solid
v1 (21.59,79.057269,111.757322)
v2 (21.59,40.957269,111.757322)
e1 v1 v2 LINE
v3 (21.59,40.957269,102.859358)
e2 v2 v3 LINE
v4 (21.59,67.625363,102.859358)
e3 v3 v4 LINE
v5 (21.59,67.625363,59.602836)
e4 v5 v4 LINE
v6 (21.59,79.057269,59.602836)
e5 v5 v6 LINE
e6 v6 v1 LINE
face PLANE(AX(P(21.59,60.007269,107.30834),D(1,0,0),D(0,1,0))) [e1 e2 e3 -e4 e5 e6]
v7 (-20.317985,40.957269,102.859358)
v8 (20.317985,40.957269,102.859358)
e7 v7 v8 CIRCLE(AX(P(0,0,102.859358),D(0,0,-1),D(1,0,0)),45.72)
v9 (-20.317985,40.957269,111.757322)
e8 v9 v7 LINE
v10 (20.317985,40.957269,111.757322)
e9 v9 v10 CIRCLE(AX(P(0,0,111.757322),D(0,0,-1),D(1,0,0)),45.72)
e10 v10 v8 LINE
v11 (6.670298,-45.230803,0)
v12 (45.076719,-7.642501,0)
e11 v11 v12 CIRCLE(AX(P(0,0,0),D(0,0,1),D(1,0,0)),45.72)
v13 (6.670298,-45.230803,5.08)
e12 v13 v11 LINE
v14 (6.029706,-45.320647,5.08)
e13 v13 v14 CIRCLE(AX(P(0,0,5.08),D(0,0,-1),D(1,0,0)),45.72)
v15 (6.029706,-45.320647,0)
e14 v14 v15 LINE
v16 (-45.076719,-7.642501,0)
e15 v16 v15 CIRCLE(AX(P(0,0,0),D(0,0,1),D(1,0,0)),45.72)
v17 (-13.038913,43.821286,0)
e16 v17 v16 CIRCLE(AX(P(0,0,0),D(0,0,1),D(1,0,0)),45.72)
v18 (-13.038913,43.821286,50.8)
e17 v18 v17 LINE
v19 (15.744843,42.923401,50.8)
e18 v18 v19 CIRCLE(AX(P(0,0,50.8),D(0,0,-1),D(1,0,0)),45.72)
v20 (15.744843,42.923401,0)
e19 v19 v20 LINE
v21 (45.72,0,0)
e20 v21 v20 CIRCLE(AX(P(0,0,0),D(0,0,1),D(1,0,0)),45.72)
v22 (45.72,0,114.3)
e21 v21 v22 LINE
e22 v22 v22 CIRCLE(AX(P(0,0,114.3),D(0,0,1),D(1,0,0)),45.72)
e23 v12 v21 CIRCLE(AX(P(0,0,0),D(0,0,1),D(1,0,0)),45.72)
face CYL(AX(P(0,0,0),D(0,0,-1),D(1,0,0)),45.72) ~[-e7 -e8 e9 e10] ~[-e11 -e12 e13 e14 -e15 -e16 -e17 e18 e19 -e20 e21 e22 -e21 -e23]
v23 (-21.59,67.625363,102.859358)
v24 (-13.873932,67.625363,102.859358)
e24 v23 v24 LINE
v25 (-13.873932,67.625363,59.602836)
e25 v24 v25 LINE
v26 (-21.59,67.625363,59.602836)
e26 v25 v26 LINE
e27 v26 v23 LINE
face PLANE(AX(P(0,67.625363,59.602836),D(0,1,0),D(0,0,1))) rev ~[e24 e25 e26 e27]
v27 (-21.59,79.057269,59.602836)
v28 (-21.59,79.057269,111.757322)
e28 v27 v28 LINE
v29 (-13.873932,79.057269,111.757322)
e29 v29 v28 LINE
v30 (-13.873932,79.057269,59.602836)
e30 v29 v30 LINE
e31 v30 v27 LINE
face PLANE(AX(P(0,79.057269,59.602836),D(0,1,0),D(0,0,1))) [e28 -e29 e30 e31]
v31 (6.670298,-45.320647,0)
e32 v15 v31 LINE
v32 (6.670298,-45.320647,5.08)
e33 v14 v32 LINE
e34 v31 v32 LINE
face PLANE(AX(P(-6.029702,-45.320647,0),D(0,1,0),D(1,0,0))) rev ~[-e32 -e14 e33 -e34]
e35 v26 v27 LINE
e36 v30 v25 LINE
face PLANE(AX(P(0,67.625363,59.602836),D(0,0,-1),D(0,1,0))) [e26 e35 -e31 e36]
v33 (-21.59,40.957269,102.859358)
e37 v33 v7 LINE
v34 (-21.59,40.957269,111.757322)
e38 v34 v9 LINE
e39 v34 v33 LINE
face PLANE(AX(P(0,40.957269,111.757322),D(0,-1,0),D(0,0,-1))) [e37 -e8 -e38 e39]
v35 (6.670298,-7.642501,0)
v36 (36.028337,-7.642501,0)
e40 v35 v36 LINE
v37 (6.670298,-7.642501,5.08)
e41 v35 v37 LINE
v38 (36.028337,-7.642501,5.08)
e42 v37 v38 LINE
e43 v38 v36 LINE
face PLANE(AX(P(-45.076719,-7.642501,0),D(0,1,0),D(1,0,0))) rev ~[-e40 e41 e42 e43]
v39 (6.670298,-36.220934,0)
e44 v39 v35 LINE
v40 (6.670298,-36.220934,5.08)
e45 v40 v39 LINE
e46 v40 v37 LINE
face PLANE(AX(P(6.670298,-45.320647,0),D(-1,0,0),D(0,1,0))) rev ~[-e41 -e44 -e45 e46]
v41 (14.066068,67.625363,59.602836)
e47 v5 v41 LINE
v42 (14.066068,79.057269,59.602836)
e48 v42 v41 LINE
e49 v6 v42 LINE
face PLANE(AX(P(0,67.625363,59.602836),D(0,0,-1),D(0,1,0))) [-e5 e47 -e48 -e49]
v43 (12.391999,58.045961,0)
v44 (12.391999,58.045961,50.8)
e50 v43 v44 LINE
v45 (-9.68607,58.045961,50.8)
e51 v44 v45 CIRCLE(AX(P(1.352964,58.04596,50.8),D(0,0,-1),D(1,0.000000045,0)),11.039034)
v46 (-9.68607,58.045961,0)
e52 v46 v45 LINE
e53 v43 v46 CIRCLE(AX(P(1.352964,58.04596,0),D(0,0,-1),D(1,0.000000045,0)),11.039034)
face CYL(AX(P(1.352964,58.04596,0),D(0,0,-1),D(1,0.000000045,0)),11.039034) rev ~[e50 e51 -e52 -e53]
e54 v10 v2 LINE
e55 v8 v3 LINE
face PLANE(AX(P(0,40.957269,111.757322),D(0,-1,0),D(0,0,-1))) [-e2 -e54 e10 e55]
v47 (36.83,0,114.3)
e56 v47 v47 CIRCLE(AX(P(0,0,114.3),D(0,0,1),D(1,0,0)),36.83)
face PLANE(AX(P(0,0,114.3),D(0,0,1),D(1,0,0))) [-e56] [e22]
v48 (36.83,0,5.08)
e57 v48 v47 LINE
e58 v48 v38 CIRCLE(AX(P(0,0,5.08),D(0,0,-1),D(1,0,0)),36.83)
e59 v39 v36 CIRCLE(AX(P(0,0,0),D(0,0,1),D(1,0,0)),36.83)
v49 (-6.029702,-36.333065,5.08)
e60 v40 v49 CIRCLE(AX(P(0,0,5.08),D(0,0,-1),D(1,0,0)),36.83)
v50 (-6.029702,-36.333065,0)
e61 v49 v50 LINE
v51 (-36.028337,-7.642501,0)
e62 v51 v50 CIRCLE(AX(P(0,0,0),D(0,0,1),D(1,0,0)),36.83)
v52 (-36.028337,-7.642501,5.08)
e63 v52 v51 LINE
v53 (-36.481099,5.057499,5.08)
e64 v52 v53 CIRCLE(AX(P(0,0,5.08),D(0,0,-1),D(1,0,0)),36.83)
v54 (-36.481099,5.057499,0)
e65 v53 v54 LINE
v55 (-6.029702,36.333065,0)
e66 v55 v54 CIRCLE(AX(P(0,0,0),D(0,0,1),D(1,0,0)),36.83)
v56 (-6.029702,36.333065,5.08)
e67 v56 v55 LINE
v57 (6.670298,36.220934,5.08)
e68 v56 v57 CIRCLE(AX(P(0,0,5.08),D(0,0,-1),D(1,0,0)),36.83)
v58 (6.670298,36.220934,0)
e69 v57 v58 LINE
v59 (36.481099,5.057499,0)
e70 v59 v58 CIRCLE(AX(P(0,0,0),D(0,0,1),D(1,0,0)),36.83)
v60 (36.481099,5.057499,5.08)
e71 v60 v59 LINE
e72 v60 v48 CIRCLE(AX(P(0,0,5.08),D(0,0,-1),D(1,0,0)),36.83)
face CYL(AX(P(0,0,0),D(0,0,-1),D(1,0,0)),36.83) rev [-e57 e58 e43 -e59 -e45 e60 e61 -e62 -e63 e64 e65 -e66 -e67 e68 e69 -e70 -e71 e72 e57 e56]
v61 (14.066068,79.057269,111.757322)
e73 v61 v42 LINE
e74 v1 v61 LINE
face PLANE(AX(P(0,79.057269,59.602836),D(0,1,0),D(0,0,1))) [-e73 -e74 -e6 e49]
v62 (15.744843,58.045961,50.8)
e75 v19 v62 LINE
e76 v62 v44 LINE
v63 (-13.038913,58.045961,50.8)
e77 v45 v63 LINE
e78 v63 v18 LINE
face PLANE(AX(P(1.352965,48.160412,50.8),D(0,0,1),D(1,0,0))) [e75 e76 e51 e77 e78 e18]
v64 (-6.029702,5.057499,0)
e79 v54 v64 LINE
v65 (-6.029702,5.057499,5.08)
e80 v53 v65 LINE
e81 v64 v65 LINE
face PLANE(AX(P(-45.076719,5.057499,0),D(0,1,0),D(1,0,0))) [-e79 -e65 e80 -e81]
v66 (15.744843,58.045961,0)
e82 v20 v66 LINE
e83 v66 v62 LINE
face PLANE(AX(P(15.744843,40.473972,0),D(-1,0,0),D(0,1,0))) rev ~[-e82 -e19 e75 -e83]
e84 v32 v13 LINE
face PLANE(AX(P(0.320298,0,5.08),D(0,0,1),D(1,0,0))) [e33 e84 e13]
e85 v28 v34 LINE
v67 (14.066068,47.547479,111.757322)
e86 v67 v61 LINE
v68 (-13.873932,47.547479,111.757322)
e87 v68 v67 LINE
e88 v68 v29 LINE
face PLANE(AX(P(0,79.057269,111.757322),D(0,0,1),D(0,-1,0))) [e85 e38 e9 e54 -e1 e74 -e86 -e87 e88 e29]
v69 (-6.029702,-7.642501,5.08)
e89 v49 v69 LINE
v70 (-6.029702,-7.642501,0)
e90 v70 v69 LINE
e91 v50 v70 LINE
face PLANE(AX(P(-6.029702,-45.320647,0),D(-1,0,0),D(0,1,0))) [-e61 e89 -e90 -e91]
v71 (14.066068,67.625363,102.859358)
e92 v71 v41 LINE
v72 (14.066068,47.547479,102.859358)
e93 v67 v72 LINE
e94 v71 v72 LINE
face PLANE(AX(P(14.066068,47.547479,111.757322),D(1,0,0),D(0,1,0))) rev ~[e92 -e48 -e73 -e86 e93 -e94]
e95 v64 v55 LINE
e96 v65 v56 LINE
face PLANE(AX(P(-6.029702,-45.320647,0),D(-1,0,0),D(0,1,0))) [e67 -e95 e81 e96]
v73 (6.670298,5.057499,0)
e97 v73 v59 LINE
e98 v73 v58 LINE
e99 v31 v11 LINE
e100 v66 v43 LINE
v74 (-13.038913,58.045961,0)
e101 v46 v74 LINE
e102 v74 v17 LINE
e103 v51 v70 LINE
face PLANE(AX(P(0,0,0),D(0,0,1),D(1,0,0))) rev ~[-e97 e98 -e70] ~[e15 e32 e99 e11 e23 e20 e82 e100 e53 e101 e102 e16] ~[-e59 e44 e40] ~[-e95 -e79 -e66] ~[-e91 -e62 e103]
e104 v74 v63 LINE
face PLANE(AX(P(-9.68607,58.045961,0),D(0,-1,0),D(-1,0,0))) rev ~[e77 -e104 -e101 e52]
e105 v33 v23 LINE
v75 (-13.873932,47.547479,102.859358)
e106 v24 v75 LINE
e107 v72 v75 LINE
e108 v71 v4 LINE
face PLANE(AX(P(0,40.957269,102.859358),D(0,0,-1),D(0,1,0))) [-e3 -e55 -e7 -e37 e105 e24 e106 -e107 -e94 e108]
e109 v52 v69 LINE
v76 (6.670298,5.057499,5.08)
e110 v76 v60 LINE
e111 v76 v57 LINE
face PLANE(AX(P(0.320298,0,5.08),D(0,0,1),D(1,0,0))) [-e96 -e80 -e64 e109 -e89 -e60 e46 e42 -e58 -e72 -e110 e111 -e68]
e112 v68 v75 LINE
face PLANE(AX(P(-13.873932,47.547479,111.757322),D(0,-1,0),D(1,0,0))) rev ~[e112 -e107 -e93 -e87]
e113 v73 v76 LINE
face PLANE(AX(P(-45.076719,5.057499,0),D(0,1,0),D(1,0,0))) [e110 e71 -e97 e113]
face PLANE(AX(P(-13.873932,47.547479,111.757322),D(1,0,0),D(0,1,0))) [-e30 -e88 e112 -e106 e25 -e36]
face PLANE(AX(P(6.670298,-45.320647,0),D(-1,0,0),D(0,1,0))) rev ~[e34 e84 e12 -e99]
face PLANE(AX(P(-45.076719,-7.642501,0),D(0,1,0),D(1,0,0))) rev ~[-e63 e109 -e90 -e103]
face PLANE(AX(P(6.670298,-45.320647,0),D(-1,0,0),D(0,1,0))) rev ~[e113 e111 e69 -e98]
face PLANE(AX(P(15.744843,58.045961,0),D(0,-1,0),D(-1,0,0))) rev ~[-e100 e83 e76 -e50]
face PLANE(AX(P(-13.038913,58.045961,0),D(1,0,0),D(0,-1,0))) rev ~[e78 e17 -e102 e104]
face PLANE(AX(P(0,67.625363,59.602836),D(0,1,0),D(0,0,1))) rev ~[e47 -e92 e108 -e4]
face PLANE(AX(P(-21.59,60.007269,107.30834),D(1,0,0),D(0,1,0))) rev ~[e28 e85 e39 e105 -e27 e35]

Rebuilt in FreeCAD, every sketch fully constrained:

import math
import FreeCAD as App
import Part
import Sketcher
Q = App.Units.Quantity

doc = App.newDocument("Part")
body = doc.addObject("PartDesign::Body", "Body")

# Sketch on XY plane
sketch1 = body.newObject("Sketcher::SketchObject", "Sketch")
sketch1.AttachmentSupport = (doc.getObject("XY_Plane"), [""])
sketch1.MapMode = "FlatFace"
sketch1.addGeometry(Part.Circle(App.Vector(0, 0, 0), App.Vector(0, 0, 1), 46), False)
sketch1.addConstraint([
    Sketcher.Constraint("Coincident", 0, 3, -1, 1),
    Sketcher.Constraint("Diameter", 0, Q("3.6 in")),
])
pad1 = body.newObject("PartDesign::Pad", "Pad")
pad1.Profile = sketch1
pad1.Length = Q("4.5 in")

# Sketch on XY plane
sketch2 = body.newObject("Sketcher::SketchObject", "Sketch001")
sketch2.AttachmentSupport = (doc.getObject("XY_Plane"), [""])
sketch2.MapMode = "FlatFace"
sketch2.addGeometry(Part.Circle(App.Vector(0, 0, 0), App.Vector(0, 0, 1), 37), False)
sketch2.addConstraint([
    Sketcher.Constraint("Coincident", 0, 3, -1, 1),
    Sketcher.Constraint("Diameter", 0, Q("2.9 in")),
])
pocket1 = body.newObject("PartDesign::Pocket", "Pocket")
pocket1.Profile = sketch2
pocket1.Length = Q("4.5 in")
pocket1.Reversed = True

# Sketch on XY plane
sketch3 = body.newObject("Sketcher::SketchObject", "Sketch002")
sketch3.AttachmentSupport = (doc.getObject("XY_Plane"), [""])
sketch3.MapMode = "FlatFace"
sketch3.addGeometry([
    Part.LineSegment(App.Vector(-45, 5, 0), App.Vector(-45, -8, 0)),
    Part.LineSegment(App.Vector(-45, -8, 0), App.Vector(45, -8, 0)),
    Part.LineSegment(App.Vector(45, -8, 0), App.Vector(45, 5, 0)),
    Part.LineSegment(App.Vector(45, 5, 0), App.Vector(-45, 5, 0)),
], False)
sketch3.addConstraint([
    Sketcher.Constraint("Coincident", 0, 2, 1, 1),
    Sketcher.Constraint("Coincident", 1, 2, 2, 1),
    Sketcher.Constraint("Coincident", 2, 2, 3, 1),
    Sketcher.Constraint("Coincident", 3, 2, 0, 1),
    Sketcher.Constraint("Vertical", 0),
    Sketcher.Constraint("Horizontal", 1),
    Sketcher.Constraint("Vertical", 2),
    Sketcher.Constraint("Horizontal", 3),
    Sketcher.Constraint("DistanceY", 0, 2, 0, 1, Q("0.5 in")),
    Sketcher.Constraint("DistanceY", 0, 2, -1, 1, 7.642501),
    Sketcher.Constraint("DistanceX", 1, 1, 1, 2, 90.153438),
    Sketcher.Constraint("DistanceX", 0, 2, -1, 1, 45.076719),
])
pad2 = body.newObject("PartDesign::Pad", "Pad001")
pad2.Profile = sketch3
pad2.Length = Q("0.2 in")

# Sketch on XY plane
sketch4 = body.newObject("Sketcher::SketchObject", "Sketch003")
sketch4.AttachmentSupport = (doc.getObject("XY_Plane"), [""])
sketch4.MapMode = "FlatFace"
sketch4.addGeometry([
    Part.LineSegment(App.Vector(-6, 45, 0), App.Vector(-6, -45, 0)),
    Part.LineSegment(App.Vector(-6, -45, 0), App.Vector(7, -45, 0)),
    Part.LineSegment(App.Vector(7, -45, 0), App.Vector(7, 45, 0)),
    Part.LineSegment(App.Vector(7, 45, 0), App.Vector(-6, 45, 0)),
], False)
sketch4.addConstraint([
    Sketcher.Constraint("Coincident", 0, 2, 1, 1),
    Sketcher.Constraint("Coincident", 1, 2, 2, 1),
    Sketcher.Constraint("Coincident", 2, 2, 3, 1),
    Sketcher.Constraint("Coincident", 3, 2, 0, 1),
    Sketcher.Constraint("Vertical", 0),
    Sketcher.Constraint("Horizontal", 1),
    Sketcher.Constraint("Vertical", 2),
    Sketcher.Constraint("Horizontal", 3),
    Sketcher.Constraint("DistanceX", 1, 1, 1, 2, Q("0.5 in")),
    Sketcher.Constraint("DistanceY", 0, 2, 0, 1, 90.641294),
    Sketcher.Constraint("DistanceX", 0, 2, -1, 1, 6.029702),
    Sketcher.Constraint("DistanceY", 0, 2, -1, 1, 45.320647),
])
pad3 = body.newObject("PartDesign::Pad", "Pad002")
pad3.Profile = sketch4
pad3.Length = Q("0.2 in")

# Sketch on YZ plane
sketch5 = body.newObject("Sketcher::SketchObject", "Sketch004")
sketch5.AttachmentSupport = (doc.getObject("YZ_Plane"), [""])
sketch5.MapMode = "FlatFace"
sketch5.addGeometry([
    Part.LineSegment(App.Vector(79, 112, 0), App.Vector(41, 112, 0)),  # 0
    Part.LineSegment(App.Vector(41, 112, 0), App.Vector(41, 103, 0)),  # 1
    Part.LineSegment(App.Vector(41, 103, 0), App.Vector(68, 103, 0)),  # 2
    Part.LineSegment(App.Vector(68, 103, 0), App.Vector(68, 60, 0)),  # 3
    Part.LineSegment(App.Vector(68, 60, 0), App.Vector(79, 60, 0)),  # 4
    Part.LineSegment(App.Vector(79, 60, 0), App.Vector(79, 112, 0)),  # 5
], False)
sketch5.addConstraint([
    Sketcher.Constraint("Coincident", 0, 2, 1, 1),
    Sketcher.Constraint("Coincident", 1, 2, 2, 1),
    Sketcher.Constraint("Coincident", 2, 2, 3, 1),
    Sketcher.Constraint("Coincident", 3, 2, 4, 1),
    Sketcher.Constraint("Coincident", 4, 2, 5, 1),
    Sketcher.Constraint("Coincident", 5, 2, 0, 1),
    Sketcher.Constraint("Horizontal", 0),
    Sketcher.Constraint("Vertical", 1),
    Sketcher.Constraint("Horizontal", 2),
    Sketcher.Constraint("Vertical", 3),
    Sketcher.Constraint("Horizontal", 4),
    Sketcher.Constraint("Vertical", 5),
    Sketcher.Constraint("DistanceX", 0, 2, 0, 1, Q("1.5 in")),
    Sketcher.Constraint("DistanceY", 3, 2, 3, 1, 43.256522),
    Sketcher.Constraint("DistanceX", 2, 1, 2, 2, 26.668094),
    Sketcher.Constraint("DistanceY", 1, 2, 1, 1, 8.897964),
    Sketcher.Constraint("DistanceX", -1, 1, 0, 2, 40.957269),
    Sketcher.Constraint("DistanceY", -1, 1, 0, 2, 111.757322),
])
pad4 = body.newObject("PartDesign::Pad", "Pad003")
pad4.Profile = sketch5
pad4.Length = Q("1.7 in")
pad4.Midplane = True

# Sketch on XY plane
sketch6 = body.newObject("Sketcher::SketchObject", "Sketch005")
sketch6.AttachmentSupport = (doc.getObject("XY_Plane"), [""])
sketch6.MapMode = "FlatFace"
sketch6.addGeometry([
    Part.LineSegment(App.Vector(-13, 40.5, 0), App.Vector(15.7, 40.5, 0)),  # 0
    Part.LineSegment(App.Vector(15.7, 40.5, 0), App.Vector(15.7, 58, 0)),  # 1
    Part.LineSegment(App.Vector(15.7, 58, 0), App.Vector(12.4, 58, 0)),  # 2
    Part.ArcOfCircle(Part.Circle(App.Vector(1.4, 58, 0), App.Vector(0, 0, 1), 11), math.radians(180), math.radians(360)),  # 3
    Part.LineSegment(App.Vector(-9.7, 58, 0), App.Vector(-13, 58, 0)),  # 4
    Part.LineSegment(App.Vector(-13, 58, 0), App.Vector(-13, 40.5, 0)),  # 5
], False)
sketch6.addConstraint([
    Sketcher.Constraint("Coincident", 0, 2, 1, 1),
    Sketcher.Constraint("Coincident", 1, 2, 2, 1),
    Sketcher.Constraint("Coincident", 2, 2, 3, 2),
    Sketcher.Constraint("Coincident", 3, 1, 4, 1),
    Sketcher.Constraint("Coincident", 4, 2, 5, 1),
    Sketcher.Constraint("Coincident", 5, 2, 0, 1),
    Sketcher.Constraint("Horizontal", 0),
    Sketcher.Constraint("Vertical", 1),
    Sketcher.Constraint("Horizontal", 2),
    Sketcher.Constraint("Horizontal", 4),
    Sketcher.Constraint("Vertical", 5),
    Sketcher.Constraint("Horizontal", 3, 3, 1, 2),
    Sketcher.Constraint("Horizontal", 2, 2, 3, 1),
    Sketcher.Constraint("Equal", 2, 4),
    Sketcher.Constraint("Radius", 3, 11.039034),
    Sketcher.Constraint("DistanceY", 1, 1, 1, 2, 17.571989),
    Sketcher.Constraint("DistanceX", -1, 1, 2, 2, 12.391999),
    Sketcher.Constraint("DistanceX", 0, 1, 0, 2, 28.783756),
    Sketcher.Constraint("DistanceY", -1, 1, 3, 3, 58.04596),
])
pad5 = body.newObject("PartDesign::Pad", "Pad004")
pad5.Profile = sketch6
pad5.Length = Q("2 in")

# Sketch on XY plane
sketch7 = body.newObject("Sketcher::SketchObject", "Sketch006")
sketch7.AttachmentSupport = (doc.getObject("XY_Plane"), [""])
sketch7.MapMode = "FlatFace"
sketch7.AttachmentOffset = App.Placement(App.Vector(0, 0, 111.757322), App.Rotation())
sketch7.addGeometry([
    Part.LineSegment(App.Vector(-14, 79, 0), App.Vector(-14, 48, 0)),
    Part.LineSegment(App.Vector(-14, 48, 0), App.Vector(14, 48, 0)),
    Part.LineSegment(App.Vector(14, 48, 0), App.Vector(14, 79, 0)),
    Part.LineSegment(App.Vector(14, 79, 0), App.Vector(-14, 79, 0)),
], False)
sketch7.addConstraint([
    Sketcher.Constraint("Coincident", 0, 2, 1, 1),
    Sketcher.Constraint("Coincident", 1, 2, 2, 1),
    Sketcher.Constraint("Coincident", 2, 2, 3, 1),
    Sketcher.Constraint("Coincident", 3, 2, 0, 1),
    Sketcher.Constraint("Vertical", 0),
    Sketcher.Constraint("Horizontal", 1),
    Sketcher.Constraint("Vertical", 2),
    Sketcher.Constraint("Horizontal", 3),
    Sketcher.Constraint("DistanceX", 1, 1, 1, 2, Q("1.1 in")),
    Sketcher.Constraint("DistanceY", 0, 2, 0, 1, 31.50979),
    Sketcher.Constraint("DistanceY", -1, 1, 0, 2, 47.547479),
    Sketcher.Constraint("DistanceX", 0, 2, -1, 1, 13.873932),
])
pocket2 = body.newObject("PartDesign::Pocket", "Pocket001")
pocket2.Profile = sketch7
pocket2.Length = Q("2.2 in")

doc.recompute()
